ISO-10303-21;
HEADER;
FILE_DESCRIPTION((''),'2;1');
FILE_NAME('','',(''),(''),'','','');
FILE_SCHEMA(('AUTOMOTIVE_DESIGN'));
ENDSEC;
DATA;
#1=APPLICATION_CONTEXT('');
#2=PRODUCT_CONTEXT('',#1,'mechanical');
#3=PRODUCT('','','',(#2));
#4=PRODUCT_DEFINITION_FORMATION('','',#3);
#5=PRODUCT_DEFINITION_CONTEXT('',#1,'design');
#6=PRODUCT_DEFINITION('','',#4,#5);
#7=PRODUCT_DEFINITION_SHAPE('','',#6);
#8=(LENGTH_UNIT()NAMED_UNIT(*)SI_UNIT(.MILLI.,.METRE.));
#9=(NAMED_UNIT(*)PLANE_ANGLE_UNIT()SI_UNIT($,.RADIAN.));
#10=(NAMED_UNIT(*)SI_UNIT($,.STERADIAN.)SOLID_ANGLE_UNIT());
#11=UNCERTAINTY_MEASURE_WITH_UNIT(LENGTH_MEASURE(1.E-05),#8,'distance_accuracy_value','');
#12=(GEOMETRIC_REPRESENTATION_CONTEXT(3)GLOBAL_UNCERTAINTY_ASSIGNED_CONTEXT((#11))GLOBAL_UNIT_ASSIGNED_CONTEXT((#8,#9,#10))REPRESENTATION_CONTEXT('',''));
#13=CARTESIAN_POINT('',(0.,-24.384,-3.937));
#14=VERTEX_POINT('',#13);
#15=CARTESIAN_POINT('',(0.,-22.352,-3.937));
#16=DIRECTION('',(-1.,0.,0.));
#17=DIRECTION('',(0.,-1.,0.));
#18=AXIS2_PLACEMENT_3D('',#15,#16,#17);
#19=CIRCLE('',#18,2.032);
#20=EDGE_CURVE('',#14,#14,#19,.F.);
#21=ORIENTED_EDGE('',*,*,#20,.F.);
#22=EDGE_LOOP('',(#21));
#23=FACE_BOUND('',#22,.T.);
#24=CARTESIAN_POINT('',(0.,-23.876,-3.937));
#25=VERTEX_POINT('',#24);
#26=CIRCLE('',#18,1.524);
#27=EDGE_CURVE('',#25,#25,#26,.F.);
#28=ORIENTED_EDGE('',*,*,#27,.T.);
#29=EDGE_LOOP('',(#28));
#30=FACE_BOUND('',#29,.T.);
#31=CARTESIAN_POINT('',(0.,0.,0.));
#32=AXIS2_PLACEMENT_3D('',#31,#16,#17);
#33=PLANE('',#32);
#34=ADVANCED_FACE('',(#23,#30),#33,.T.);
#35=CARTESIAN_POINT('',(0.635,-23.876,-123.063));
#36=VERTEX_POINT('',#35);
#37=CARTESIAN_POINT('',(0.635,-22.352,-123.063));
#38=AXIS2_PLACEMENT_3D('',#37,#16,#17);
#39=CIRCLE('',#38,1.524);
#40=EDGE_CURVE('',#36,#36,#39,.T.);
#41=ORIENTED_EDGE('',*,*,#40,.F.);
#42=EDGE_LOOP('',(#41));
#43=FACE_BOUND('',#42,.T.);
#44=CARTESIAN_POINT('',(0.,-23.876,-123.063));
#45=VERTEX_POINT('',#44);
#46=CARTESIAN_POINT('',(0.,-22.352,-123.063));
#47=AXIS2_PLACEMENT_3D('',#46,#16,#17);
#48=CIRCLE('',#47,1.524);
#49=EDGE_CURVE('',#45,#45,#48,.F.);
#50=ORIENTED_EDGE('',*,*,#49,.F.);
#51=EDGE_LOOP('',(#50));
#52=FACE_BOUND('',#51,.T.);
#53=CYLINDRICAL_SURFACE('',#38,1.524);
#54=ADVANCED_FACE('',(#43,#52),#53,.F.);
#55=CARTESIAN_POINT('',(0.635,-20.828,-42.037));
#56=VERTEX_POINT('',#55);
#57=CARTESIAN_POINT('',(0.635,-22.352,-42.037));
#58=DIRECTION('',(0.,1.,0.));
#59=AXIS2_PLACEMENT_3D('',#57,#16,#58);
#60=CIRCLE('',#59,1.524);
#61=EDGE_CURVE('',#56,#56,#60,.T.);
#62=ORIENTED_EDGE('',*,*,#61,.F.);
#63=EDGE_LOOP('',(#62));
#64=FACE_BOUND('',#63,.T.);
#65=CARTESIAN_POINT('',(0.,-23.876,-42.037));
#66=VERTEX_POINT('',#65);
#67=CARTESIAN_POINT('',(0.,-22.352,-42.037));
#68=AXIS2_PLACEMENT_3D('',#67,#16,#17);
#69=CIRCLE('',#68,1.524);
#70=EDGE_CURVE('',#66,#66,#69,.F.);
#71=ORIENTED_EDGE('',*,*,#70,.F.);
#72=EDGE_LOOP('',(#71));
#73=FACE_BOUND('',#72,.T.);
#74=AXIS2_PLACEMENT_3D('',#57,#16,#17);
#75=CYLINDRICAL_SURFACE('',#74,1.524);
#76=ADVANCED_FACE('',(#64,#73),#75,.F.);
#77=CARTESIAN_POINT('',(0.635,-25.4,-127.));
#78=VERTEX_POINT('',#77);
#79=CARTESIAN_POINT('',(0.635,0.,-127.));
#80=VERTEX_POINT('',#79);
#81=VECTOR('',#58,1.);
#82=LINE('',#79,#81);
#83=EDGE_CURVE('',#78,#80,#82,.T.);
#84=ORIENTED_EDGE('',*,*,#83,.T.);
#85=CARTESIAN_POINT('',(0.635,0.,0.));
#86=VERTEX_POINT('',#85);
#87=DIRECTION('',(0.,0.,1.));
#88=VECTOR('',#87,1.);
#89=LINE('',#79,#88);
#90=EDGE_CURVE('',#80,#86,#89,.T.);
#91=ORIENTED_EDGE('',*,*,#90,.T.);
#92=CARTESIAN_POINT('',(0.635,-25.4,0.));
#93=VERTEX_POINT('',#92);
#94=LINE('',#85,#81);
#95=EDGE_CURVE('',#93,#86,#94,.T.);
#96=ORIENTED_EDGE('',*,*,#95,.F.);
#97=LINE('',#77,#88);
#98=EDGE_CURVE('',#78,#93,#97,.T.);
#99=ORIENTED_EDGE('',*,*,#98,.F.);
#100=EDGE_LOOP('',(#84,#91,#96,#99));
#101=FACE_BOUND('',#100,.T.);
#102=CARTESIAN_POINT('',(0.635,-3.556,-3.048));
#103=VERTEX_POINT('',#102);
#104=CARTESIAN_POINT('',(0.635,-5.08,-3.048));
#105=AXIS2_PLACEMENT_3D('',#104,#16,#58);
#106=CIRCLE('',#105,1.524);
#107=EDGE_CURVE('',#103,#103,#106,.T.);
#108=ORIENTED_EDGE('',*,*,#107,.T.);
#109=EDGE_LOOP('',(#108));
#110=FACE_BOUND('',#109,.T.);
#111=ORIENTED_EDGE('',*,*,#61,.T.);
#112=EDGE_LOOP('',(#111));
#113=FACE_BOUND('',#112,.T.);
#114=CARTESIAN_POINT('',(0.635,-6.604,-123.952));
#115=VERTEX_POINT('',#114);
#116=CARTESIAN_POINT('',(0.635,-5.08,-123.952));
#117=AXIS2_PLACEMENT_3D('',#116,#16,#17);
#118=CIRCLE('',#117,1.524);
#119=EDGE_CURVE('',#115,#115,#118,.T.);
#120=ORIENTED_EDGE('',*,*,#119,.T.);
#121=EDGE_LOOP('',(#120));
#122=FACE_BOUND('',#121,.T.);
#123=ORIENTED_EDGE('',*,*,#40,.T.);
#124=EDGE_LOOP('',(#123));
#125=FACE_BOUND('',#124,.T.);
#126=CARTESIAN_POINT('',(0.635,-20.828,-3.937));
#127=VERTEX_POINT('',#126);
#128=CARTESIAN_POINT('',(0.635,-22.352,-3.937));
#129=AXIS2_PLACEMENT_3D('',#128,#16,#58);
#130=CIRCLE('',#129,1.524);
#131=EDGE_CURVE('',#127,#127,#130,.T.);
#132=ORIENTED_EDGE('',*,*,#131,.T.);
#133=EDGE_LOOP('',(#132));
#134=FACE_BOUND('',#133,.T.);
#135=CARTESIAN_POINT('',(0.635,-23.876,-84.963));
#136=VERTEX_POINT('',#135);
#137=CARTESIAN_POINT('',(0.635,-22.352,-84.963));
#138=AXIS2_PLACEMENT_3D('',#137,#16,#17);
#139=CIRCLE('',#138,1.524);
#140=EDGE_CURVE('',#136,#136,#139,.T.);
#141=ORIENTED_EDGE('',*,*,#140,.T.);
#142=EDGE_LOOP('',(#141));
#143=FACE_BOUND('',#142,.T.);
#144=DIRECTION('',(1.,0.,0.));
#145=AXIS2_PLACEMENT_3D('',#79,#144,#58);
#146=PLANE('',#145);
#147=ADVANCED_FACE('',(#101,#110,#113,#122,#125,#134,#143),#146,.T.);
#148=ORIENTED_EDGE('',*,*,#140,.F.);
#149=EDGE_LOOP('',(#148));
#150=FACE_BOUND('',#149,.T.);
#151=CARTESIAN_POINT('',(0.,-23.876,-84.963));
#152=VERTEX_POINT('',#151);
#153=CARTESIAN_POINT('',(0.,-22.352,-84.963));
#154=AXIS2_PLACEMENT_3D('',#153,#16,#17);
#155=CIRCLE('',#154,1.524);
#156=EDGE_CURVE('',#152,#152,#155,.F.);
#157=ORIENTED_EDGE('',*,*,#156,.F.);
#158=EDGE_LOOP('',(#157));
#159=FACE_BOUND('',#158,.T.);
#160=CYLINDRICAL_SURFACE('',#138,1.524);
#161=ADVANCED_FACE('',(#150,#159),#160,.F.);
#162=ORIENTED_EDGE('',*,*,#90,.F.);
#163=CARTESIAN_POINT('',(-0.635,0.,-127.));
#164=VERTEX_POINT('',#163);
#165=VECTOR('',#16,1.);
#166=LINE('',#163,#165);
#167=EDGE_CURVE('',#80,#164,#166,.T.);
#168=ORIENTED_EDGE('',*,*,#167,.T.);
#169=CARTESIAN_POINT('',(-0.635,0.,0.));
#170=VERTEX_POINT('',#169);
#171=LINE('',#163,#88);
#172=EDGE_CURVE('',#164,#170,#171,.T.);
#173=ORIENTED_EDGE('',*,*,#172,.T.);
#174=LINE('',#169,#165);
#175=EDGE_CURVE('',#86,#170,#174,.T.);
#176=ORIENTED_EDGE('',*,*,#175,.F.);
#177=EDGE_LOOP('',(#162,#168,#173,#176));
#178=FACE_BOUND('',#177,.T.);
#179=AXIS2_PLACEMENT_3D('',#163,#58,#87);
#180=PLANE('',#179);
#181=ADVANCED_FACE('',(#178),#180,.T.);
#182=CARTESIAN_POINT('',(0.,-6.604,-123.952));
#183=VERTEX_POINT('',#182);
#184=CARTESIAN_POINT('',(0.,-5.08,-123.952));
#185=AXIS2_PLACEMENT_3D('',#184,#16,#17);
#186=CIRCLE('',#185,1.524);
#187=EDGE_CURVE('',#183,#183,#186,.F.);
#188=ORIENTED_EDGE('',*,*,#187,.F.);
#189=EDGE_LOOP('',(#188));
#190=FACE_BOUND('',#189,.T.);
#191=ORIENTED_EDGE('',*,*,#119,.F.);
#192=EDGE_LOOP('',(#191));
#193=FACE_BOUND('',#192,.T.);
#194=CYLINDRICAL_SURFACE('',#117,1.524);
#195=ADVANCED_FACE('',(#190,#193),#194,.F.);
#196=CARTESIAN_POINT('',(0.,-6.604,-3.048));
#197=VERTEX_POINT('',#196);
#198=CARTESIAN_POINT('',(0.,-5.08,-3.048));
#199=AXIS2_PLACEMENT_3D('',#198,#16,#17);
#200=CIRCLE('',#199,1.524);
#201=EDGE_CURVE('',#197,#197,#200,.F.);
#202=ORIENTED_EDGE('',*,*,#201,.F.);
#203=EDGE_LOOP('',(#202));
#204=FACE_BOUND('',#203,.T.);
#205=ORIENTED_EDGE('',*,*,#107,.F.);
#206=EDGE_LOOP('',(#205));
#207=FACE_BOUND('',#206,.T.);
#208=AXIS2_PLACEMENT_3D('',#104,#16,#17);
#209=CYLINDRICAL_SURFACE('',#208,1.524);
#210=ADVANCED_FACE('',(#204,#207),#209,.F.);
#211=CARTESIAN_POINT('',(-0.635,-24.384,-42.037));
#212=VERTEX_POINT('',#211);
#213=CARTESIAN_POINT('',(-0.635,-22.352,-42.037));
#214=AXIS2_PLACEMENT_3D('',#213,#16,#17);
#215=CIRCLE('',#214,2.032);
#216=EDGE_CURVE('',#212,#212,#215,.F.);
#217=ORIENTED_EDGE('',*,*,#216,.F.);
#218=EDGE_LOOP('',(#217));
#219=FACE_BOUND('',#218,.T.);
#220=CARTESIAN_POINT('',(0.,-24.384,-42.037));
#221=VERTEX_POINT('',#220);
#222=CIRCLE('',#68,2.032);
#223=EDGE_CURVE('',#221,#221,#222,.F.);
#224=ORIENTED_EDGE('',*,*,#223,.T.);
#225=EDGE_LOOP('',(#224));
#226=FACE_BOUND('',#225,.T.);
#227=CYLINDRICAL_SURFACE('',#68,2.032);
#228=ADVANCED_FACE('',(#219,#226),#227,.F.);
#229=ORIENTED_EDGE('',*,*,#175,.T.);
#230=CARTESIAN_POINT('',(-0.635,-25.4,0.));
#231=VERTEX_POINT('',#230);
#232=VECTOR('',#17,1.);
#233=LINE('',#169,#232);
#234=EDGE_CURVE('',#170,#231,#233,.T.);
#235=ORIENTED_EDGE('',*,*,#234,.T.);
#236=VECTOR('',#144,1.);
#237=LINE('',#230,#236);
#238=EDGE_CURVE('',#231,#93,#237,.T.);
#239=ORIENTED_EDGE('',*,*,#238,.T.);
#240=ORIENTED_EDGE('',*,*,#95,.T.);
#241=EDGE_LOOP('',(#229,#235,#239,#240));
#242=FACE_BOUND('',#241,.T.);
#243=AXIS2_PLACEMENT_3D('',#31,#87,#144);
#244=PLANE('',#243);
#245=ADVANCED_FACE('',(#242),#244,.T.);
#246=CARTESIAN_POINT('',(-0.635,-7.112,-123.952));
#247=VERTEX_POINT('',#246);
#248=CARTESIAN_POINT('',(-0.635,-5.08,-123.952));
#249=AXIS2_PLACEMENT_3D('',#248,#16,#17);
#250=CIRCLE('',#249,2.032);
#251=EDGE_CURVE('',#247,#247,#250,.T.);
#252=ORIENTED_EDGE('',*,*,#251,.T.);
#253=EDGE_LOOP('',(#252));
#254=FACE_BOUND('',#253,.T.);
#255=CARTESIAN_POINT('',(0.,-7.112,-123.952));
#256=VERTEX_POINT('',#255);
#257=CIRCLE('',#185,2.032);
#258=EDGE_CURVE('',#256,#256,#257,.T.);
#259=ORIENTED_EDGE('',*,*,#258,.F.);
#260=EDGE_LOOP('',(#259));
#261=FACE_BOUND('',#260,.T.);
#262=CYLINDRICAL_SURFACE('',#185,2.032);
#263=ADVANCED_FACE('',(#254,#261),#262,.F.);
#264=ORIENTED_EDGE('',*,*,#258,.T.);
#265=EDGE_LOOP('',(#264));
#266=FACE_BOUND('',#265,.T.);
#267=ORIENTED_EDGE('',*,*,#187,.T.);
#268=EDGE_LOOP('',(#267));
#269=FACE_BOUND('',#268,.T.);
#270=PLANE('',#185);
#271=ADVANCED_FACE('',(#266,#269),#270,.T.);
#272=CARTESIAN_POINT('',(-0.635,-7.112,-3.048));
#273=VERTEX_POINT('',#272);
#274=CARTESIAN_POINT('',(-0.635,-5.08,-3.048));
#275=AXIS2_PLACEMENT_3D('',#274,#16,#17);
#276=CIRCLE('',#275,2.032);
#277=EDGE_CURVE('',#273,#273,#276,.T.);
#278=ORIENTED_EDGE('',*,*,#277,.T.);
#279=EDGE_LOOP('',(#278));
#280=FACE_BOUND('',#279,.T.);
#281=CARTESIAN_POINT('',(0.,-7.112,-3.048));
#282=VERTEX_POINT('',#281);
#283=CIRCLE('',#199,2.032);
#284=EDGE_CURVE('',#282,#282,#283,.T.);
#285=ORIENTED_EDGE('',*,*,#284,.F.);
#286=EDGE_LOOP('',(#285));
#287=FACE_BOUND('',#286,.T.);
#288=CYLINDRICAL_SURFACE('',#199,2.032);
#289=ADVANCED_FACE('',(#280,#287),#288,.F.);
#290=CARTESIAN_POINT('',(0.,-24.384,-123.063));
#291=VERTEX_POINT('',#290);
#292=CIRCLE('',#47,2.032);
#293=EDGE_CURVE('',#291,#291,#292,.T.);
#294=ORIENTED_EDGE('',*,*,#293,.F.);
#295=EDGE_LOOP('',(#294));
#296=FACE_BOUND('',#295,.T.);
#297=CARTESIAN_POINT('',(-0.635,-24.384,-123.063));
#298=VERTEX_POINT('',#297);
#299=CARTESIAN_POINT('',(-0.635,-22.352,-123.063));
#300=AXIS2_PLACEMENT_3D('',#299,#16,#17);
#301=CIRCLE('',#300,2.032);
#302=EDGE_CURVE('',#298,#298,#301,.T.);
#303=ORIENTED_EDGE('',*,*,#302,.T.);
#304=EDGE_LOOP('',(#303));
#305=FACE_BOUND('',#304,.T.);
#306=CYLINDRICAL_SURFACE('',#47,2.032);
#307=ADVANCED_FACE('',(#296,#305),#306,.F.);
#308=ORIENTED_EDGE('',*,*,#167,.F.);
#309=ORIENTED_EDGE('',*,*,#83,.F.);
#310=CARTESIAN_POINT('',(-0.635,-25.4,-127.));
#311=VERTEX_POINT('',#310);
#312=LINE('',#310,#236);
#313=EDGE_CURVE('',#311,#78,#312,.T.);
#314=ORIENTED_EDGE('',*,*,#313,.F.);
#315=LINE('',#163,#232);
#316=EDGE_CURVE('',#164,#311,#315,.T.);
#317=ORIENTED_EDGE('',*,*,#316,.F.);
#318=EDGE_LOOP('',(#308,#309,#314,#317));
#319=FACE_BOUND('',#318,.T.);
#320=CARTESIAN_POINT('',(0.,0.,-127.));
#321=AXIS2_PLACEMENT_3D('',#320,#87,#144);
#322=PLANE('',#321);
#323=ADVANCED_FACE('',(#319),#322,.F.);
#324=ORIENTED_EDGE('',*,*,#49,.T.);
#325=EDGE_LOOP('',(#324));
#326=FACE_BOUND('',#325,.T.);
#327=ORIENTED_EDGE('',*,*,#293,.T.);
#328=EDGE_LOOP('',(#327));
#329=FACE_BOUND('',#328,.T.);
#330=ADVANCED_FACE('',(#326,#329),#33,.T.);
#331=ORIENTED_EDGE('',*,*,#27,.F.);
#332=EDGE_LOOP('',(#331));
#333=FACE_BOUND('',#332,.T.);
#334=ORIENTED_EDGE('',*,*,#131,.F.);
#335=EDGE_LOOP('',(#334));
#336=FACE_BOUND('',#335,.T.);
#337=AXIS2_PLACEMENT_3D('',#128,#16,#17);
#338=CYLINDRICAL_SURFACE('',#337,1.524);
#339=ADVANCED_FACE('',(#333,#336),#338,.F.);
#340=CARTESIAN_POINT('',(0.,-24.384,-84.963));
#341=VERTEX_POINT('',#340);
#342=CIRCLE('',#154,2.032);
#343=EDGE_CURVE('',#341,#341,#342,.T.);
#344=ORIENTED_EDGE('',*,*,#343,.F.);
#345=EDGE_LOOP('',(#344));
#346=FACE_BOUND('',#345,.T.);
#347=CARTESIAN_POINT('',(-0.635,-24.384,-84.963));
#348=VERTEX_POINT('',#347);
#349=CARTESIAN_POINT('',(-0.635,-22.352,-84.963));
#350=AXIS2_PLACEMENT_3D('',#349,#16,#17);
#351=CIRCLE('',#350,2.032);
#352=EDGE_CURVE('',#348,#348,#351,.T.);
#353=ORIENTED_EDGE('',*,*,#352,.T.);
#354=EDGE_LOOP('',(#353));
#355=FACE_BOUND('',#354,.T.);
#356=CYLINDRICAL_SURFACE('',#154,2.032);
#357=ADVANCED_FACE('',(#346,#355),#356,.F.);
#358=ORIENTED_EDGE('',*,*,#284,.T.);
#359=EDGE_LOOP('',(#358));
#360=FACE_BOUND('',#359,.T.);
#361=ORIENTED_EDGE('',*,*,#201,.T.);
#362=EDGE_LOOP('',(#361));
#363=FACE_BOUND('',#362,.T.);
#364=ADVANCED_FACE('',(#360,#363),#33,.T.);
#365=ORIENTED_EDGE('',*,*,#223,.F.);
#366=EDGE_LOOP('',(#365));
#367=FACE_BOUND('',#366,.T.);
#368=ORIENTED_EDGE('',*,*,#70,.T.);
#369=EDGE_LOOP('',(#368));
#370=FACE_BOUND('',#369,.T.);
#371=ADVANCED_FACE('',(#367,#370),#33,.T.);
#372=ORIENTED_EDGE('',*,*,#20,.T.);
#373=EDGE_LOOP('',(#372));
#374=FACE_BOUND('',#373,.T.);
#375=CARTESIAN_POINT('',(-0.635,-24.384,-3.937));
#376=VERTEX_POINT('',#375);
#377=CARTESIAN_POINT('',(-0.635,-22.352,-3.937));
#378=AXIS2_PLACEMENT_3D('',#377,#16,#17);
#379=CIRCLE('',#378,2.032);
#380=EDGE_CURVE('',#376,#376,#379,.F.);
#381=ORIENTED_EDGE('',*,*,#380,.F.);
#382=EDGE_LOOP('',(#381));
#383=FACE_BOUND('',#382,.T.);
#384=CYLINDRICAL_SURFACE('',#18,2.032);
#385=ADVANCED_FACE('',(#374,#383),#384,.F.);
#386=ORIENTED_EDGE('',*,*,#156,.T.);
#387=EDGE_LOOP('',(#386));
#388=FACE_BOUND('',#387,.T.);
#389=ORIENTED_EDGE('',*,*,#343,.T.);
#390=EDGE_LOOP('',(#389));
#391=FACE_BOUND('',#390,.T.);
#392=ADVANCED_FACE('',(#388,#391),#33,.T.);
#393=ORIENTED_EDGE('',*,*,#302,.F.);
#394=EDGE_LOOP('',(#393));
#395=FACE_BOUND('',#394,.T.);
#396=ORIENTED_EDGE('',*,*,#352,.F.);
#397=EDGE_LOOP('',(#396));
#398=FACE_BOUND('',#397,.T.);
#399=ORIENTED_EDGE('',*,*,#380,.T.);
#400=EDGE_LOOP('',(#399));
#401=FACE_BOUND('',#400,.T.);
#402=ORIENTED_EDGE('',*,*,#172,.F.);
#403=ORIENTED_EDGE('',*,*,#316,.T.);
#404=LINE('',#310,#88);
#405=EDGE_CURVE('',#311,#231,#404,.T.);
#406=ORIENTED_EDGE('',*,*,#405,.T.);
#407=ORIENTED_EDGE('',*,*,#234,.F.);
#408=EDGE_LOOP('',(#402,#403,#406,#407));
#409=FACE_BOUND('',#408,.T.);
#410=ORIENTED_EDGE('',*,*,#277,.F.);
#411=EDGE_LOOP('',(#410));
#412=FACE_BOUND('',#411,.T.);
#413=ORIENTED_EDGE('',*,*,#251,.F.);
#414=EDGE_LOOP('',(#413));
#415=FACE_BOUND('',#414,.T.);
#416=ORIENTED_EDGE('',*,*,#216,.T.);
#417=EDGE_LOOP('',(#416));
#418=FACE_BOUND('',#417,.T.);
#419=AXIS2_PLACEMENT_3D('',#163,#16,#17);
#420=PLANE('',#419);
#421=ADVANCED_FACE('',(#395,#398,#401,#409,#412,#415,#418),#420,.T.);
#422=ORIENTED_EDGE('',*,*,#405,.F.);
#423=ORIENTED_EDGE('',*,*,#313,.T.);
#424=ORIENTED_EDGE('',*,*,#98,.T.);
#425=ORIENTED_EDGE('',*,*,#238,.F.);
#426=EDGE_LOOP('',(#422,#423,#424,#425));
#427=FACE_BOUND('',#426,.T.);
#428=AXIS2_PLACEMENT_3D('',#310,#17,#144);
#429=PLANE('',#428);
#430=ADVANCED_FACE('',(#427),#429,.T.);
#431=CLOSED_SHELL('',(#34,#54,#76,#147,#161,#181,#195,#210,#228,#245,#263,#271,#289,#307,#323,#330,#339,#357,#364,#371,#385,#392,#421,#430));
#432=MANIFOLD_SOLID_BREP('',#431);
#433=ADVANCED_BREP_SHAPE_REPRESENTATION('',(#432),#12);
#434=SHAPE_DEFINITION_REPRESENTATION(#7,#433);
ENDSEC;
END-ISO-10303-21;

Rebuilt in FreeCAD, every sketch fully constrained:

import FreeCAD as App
import Part
import Sketcher

V = App.Vector
Q = App.Units.Quantity


def add_polygon(sketch, points):
    """Adds a closed chain of lines whose ends are joined by coincident constraints."""
    first, n = sketch.GeometryCount, len(points)
    for a, b in zip(points, points[1:] + points[:1]):
        sketch.addGeometry(Part.LineSegment(App.Vector(*a, 0), App.Vector(*b, 0)), False)
    for i in range(n):
        sketch.addConstraint(Sketcher.Constraint("Coincident", first + i, 2, first + (i + 1) % n, 1))

doc = App.newDocument("Part")
body = doc.addObject("PartDesign::Body", "Body")

# Sketch on XY plane
sketch1 = doc.addObject("Sketcher::SketchObject", "Sketch")
body.addObject(sketch1)
sketch1.AttachmentSupport = (doc.XY_Plane, [""])
sketch1.MapMode = "FlatFace"
add_polygon(sketch1, [(-0.6, 0), (-0.6, -25.4), (0.6, -25.4), (0.6, 0)])  # lines 0-3
sketch1.addConstraint([
    Sketcher.Constraint("Vertical", 0),
    Sketcher.Constraint("Horizontal", 1),
    Sketcher.Constraint("Vertical", 2),
    Sketcher.Constraint("Horizontal", 3),
    Sketcher.Constraint("Symmetric", 2, 2, 3, 2, -1, 1),
    Sketcher.Constraint("DistanceY", 0, 2, 0, 1, Q("1 in")),
    Sketcher.Constraint("DistanceX", 1, 1, 1, 2, Q("0.05 in")),
])
pad1 = doc.addObject("PartDesign::Pad", "Pad")
body.addObject(pad1)
pad1.Profile = sketch1
pad1.Length = Q("5 in")
pad1.Reversed = True

# Sketch on YZ plane
sketch2 = doc.addObject("Sketcher::SketchObject", "Sketch001")
body.addObject(sketch2)
sketch2.AttachmentSupport = (doc.YZ_Plane, [""])
sketch2.MapMode = "FlatFace"
sketch2.AttachmentOffset = App.Placement(V(0, 0, -0.025 * 25.4), App.Rotation())
sketch2.addGeometry([
    Part.Circle(V(-22.4, -123.1, 0), V(0, 0, 1), 1.5),  # 0
    Part.Circle(V(-22.4, -85, 0), V(0, 0, 1), 1.5),  # 1
    Part.Circle(V(-5.1, -124, 0), V(0, 0, 1), 1.5),  # 2
    Part.Circle(V(-22.4, -42, 0), V(0, 0, 1), 1.5),  # 3
    Part.Circle(V(-22.4, -3.9, 0), V(0, 0, 1), 1.5),  # 4
    Part.Circle(V(-5.1, -3, 0), V(0, 0, 1), 1.5),  # 5
], False)
sketch2.addConstraint([
    Sketcher.Constraint("Equal", 0, 1),
    Sketcher.Constraint("Equal", 1, 2),
    Sketcher.Constraint("Equal", 2, 3),
    Sketcher.Constraint("Equal", 3, 4),
    Sketcher.Constraint("Equal", 4, 5),
    Sketcher.Constraint("Vertical", 0, 3, 1, 3),
    Sketcher.Constraint("Vertical", 1, 3, 3, 3),
    Sketcher.Constraint("Vertical", 3, 3, 4, 3),
    Sketcher.Constraint("Vertical", 2, 3, 5, 3),
    Sketcher.Constraint("Diameter", 0, Q("0.12 in")),
    Sketcher.Constraint("DistanceX", 2, 3, -1, 1, Q("0.2 in")),
    Sketcher.Constraint("DistanceY", 0, 3, 1, 3, Q("1.5 in")),
    Sketcher.Constraint("DistanceY", 3, 3, 4, 3, Q("1.5 in")),
    Sketcher.Constraint("DistanceX", 0, 3, -1, 1, Q("0.88 in")),
    Sketcher.Constraint("DistanceY", 2, 3, -1, 1, Q("4.88 in")),
    Sketcher.Constraint("DistanceY", 5, 3, -1, 1, Q("0.12 in")),
    Sketcher.Constraint("DistanceY", 1, 3, 3, 3, Q("1.69 in")),
    Sketcher.Constraint("DistanceY", 0, 3, -1, 1, Q("4.845 in")),
])
pocket1 = doc.addObject("PartDesign::Pocket", "Pocket")
body.addObject(pocket1)
pocket1.Profile = sketch2
pocket1.Length = Q("0.05 in")
pocket1.Reversed = True

# Sketch on YZ plane
sketch3 = doc.addObject("Sketcher::SketchObject", "Sketch002")
body.addObject(sketch3)
sketch3.AttachmentSupport = (doc.YZ_Plane, [""])
sketch3.MapMode = "FlatFace"
sketch3.AttachmentOffset = App.Placement(V(0, 0, -0.025 * 25.4), App.Rotation())
sketch3.addGeometry([
    Part.Circle(V(-22.4, -123.1, 0), V(0, 0, 1), 2),  # 0
    Part.Circle(V(-22.4, -123.1, 0), V(0, 0, 1), 1.5),  # 1
    Part.Circle(V(-22.4, -85, 0), V(0, 0, 1), 2),  # 2
    Part.Circle(V(-22.4, -85, 0), V(0, 0, 1), 1.5),  # 3
    Part.Circle(V(-22.4, -42, 0), V(0, 0, 1), 2),  # 4
    Part.Circle(V(-22.4, -42, 0), V(0, 0, 1), 1.5),  # 5
    Part.Circle(V(-22.4, -3.9, 0), V(0, 0, 1), 2),  # 6
    Part.Circle(V(-22.4, -3.9, 0), V(0, 0, 1), 1.5),  # 7
    Part.Circle(V(-5.1, -3, 0), V(0, 0, 1), 2),  # 8
    Part.Circle(V(-5.1, -3, 0), V(0, 0, 1), 1.5),  # 9
    Part.Circle(V(-5.1, -124, 0), V(0, 0, 1), 2),  # 10
], False)
sketch3.addConstraint([
    Sketcher.Constraint("Coincident", 1, 3, 0, 3),
    Sketcher.Constraint("Coincident", 3, 3, 2, 3),
    Sketcher.Constraint("Coincident", 5, 3, 4, 3),
    Sketcher.Constraint("Coincident", 7, 3, 6, 3),
    Sketcher.Constraint("Coincident", 9, 3, 8, 3),
    Sketcher.Constraint("Equal", 0, 2),
    Sketcher.Constraint("Equal", 1, 3),
    Sketcher.Constraint("Equal", 2, 4),
    Sketcher.Constraint("Equal", 3, 5),
    Sketcher.Constraint("Equal", 4, 6),
    Sketcher.Constraint("Equal", 5, 7),
    Sketcher.Constraint("Equal", 6, 8),
    Sketcher.Constraint("Equal", 7, 9),
    Sketcher.Constraint("Equal", 8, 10),
    Sketcher.Constraint("Vertical", 1, 3, 2, 3),
    Sketcher.Constraint("Vertical", 3, 3, 4, 3),
    Sketcher.Constraint("Vertical", 5, 3, 6, 3),
    Sketcher.Constraint("Vertical", 9, 3, 10, 3),
    Sketcher.Constraint("Diameter", 0, Q("0.16 in")),
    Sketcher.Constraint("Diameter", 1, Q("0.12 in")),
    Sketcher.Constraint("DistanceX", 8, 3, -1, 1, Q("0.2 in")),
    Sketcher.Constraint("DistanceY", 0, 3, 2, 3, Q("1.5 in")),
    Sketcher.Constraint("DistanceY", 4, 3, 6, 3, Q("1.5 in")),
    Sketcher.Constraint("DistanceX", 0, 3, -1, 1, Q("0.88 in")),
    Sketcher.Constraint("DistanceY", 8, 3, -1, 1, Q("0.12 in")),
    Sketcher.Constraint("DistanceY", 10, 3, -1, 1, Q("4.88 in")),
    Sketcher.Constraint("DistanceY", 2, 3, 4, 3, Q("1.69 in")),
    Sketcher.Constraint("DistanceY", 0, 3, -1, 1, Q("4.845 in")),
])
pocket2 = doc.addObject("PartDesign::Pocket", "Pocket001")
body.addObject(pocket2)
pocket2.Profile = sketch3
pocket2.Length = Q("0.025 in")
pocket2.Reversed = True

doc.recompute()
